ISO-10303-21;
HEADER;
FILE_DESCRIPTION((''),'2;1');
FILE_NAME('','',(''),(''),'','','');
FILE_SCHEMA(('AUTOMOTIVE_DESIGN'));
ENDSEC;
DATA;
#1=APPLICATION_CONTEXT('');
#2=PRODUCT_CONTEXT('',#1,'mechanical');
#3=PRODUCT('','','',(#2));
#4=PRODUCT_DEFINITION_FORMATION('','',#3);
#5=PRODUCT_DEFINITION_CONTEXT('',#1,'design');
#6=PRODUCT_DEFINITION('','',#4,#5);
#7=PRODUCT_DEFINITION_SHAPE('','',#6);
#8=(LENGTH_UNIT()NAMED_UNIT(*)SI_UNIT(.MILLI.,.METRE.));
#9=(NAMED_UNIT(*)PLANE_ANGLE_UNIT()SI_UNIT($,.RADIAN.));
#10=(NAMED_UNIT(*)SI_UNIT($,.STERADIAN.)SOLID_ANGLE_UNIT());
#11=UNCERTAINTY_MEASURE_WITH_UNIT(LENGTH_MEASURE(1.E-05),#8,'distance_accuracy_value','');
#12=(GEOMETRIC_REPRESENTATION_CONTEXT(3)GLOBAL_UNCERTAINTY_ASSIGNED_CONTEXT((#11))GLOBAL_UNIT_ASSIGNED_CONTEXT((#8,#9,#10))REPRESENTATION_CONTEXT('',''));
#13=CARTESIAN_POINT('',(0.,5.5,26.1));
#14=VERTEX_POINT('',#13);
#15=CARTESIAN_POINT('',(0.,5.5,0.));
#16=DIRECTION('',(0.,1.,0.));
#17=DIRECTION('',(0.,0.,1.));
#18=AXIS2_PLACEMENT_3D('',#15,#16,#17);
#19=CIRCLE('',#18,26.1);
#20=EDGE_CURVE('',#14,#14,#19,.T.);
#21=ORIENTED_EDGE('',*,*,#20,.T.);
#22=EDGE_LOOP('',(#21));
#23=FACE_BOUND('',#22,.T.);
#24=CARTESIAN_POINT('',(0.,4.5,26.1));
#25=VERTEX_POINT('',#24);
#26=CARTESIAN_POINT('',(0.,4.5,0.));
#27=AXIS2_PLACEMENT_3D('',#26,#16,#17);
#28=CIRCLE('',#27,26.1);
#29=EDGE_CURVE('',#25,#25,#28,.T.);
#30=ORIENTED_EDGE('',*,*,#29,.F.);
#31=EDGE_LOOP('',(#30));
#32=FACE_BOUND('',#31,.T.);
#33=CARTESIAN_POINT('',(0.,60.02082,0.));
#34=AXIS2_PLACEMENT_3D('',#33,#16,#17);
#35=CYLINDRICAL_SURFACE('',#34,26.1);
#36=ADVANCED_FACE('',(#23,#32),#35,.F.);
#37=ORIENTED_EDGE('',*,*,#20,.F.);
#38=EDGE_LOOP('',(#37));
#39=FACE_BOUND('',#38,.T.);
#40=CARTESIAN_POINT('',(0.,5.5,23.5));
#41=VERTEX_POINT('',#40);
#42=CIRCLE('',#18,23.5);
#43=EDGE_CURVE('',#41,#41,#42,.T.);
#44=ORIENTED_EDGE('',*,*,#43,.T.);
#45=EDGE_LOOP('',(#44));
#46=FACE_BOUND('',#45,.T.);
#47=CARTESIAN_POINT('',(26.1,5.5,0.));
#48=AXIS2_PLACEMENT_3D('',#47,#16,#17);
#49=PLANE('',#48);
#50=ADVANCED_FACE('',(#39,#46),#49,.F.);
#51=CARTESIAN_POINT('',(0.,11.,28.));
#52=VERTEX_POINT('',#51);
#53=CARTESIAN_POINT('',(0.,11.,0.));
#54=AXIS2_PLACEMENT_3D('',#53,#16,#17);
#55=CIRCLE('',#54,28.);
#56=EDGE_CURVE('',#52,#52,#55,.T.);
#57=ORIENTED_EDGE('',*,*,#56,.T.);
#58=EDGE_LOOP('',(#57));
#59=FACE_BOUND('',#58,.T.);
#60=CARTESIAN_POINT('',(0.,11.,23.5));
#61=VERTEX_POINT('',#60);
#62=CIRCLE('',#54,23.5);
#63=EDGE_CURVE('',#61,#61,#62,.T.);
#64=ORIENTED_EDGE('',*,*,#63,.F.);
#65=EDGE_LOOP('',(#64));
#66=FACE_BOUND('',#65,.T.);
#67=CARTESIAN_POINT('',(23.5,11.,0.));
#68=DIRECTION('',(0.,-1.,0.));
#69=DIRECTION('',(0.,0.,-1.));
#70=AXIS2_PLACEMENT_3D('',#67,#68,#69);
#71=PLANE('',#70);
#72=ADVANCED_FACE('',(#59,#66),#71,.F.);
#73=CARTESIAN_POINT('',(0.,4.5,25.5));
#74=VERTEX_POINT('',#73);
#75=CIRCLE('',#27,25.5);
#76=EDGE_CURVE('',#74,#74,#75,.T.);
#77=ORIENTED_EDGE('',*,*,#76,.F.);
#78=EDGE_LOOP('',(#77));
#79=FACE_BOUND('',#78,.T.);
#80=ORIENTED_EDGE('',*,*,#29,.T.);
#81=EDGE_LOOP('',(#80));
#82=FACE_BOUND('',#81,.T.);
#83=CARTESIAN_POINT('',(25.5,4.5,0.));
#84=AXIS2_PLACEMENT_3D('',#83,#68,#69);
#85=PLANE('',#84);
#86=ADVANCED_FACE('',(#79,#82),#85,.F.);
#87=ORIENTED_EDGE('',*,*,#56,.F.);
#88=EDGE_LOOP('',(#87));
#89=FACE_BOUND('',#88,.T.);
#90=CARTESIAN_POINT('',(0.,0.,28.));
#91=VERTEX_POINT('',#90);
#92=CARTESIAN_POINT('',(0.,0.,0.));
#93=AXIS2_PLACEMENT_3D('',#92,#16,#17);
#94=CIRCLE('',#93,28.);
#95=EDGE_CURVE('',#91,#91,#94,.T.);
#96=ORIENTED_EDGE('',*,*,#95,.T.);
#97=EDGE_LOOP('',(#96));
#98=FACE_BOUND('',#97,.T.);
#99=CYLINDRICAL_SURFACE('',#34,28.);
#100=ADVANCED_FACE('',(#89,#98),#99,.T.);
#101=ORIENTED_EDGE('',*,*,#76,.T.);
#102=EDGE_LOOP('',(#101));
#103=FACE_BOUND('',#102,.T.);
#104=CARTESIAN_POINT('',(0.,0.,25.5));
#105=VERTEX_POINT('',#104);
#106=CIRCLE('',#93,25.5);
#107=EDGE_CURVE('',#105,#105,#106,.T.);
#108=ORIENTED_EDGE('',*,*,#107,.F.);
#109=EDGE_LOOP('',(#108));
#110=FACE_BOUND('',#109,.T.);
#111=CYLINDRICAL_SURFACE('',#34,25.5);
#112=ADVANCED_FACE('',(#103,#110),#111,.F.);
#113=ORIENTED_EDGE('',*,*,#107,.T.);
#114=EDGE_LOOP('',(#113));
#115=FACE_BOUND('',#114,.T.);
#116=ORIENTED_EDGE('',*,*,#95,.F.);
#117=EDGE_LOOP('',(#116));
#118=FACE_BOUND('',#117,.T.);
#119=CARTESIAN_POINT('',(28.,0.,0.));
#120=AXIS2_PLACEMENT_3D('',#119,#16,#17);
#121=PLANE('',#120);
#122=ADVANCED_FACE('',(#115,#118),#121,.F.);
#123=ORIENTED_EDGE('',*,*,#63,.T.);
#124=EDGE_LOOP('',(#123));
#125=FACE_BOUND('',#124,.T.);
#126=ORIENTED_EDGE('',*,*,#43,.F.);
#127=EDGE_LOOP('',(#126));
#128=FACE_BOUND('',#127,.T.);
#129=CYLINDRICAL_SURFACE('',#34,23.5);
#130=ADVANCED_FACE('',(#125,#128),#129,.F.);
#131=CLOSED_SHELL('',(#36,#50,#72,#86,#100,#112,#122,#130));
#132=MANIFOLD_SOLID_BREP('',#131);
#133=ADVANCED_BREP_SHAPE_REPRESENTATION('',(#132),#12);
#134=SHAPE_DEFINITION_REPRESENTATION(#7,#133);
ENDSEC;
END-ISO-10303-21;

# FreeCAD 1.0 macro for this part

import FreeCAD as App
import Part
import Sketcher
from FreeCAD import Vector
Q = App.Units.Quantity


def add_polygon(sketch, points):
    """Adds a closed chain of lines whose ends are joined by coincident constraints."""
    first, n = sketch.GeometryCount, len(points)
    for a, b in zip(points, points[1:] + points[:1]):
        sketch.addGeometry(Part.LineSegment(App.Vector(*a, 0), App.Vector(*b, 0)), False)
    for i in range(n):
        sketch.addConstraint(Sketcher.Constraint("Coincident", first + i, 2, first + (i + 1) % n, 1))

doc = App.newDocument("Part")
body = doc.addObject("PartDesign::Body", "Body")

sketch1 = doc.addObject("Sketcher::SketchObject", "Sketch")
body.addObject(sketch1)
sketch1.AttachmentSupport = (doc.XY_Plane, [""])
sketch1.MapMode = "FlatFace"
add_polygon(sketch1, [(25.5, 4.5), (25.5, 0), (28, 0), (28, 11), (23.5, 11), (23.5, 5.5), (26.1, 5.5), (26.1, 4.5)])
sketch1.addConstraint([
    Sketcher.Constraint("Vertical", 0),
    Sketcher.Constraint("Horizontal", 1),
    Sketcher.Constraint("Vertical", 2),
    Sketcher.Constraint("Horizontal", 3),
    Sketcher.Constraint("Vertical", 4),
    Sketcher.Constraint("Horizontal", 5),
    Sketcher.Constraint("Vertical", 6),
    Sketcher.Constraint("Horizontal", 7),
    Sketcher.Constraint("PointOnObject", 0, 2, -1),
    Sketcher.Constraint("Equal", 3, 0),
    Sketcher.Constraint("DistanceY", 2, 1, 2, 2, Q("11 mm")),
    Sketcher.Constraint("DistanceY", 6, 2, 6, 1, Q("1 mm")),
    Sketcher.Constraint("DistanceX", 1, 1, 1, 2, Q("2.5 mm")),
    Sketcher.Constraint("DistanceX", 3, 2, 3, 1, Q("4.5 mm")),
    Sketcher.Constraint("DistanceX", 5, 1, 5, 2, Q("2.6 mm")),
    Sketcher.Constraint("DistanceX", -1, 1, 1, 2, Q("28 mm")),
])
revolution = doc.addObject("PartDesign::Revolution", "Revolution")
body.addObject(revolution)
revolution.Profile = sketch1
revolution.ReferenceAxis = (sketch1, ["V_Axis"])
revolution.Angle = 360

doc.recompute()
